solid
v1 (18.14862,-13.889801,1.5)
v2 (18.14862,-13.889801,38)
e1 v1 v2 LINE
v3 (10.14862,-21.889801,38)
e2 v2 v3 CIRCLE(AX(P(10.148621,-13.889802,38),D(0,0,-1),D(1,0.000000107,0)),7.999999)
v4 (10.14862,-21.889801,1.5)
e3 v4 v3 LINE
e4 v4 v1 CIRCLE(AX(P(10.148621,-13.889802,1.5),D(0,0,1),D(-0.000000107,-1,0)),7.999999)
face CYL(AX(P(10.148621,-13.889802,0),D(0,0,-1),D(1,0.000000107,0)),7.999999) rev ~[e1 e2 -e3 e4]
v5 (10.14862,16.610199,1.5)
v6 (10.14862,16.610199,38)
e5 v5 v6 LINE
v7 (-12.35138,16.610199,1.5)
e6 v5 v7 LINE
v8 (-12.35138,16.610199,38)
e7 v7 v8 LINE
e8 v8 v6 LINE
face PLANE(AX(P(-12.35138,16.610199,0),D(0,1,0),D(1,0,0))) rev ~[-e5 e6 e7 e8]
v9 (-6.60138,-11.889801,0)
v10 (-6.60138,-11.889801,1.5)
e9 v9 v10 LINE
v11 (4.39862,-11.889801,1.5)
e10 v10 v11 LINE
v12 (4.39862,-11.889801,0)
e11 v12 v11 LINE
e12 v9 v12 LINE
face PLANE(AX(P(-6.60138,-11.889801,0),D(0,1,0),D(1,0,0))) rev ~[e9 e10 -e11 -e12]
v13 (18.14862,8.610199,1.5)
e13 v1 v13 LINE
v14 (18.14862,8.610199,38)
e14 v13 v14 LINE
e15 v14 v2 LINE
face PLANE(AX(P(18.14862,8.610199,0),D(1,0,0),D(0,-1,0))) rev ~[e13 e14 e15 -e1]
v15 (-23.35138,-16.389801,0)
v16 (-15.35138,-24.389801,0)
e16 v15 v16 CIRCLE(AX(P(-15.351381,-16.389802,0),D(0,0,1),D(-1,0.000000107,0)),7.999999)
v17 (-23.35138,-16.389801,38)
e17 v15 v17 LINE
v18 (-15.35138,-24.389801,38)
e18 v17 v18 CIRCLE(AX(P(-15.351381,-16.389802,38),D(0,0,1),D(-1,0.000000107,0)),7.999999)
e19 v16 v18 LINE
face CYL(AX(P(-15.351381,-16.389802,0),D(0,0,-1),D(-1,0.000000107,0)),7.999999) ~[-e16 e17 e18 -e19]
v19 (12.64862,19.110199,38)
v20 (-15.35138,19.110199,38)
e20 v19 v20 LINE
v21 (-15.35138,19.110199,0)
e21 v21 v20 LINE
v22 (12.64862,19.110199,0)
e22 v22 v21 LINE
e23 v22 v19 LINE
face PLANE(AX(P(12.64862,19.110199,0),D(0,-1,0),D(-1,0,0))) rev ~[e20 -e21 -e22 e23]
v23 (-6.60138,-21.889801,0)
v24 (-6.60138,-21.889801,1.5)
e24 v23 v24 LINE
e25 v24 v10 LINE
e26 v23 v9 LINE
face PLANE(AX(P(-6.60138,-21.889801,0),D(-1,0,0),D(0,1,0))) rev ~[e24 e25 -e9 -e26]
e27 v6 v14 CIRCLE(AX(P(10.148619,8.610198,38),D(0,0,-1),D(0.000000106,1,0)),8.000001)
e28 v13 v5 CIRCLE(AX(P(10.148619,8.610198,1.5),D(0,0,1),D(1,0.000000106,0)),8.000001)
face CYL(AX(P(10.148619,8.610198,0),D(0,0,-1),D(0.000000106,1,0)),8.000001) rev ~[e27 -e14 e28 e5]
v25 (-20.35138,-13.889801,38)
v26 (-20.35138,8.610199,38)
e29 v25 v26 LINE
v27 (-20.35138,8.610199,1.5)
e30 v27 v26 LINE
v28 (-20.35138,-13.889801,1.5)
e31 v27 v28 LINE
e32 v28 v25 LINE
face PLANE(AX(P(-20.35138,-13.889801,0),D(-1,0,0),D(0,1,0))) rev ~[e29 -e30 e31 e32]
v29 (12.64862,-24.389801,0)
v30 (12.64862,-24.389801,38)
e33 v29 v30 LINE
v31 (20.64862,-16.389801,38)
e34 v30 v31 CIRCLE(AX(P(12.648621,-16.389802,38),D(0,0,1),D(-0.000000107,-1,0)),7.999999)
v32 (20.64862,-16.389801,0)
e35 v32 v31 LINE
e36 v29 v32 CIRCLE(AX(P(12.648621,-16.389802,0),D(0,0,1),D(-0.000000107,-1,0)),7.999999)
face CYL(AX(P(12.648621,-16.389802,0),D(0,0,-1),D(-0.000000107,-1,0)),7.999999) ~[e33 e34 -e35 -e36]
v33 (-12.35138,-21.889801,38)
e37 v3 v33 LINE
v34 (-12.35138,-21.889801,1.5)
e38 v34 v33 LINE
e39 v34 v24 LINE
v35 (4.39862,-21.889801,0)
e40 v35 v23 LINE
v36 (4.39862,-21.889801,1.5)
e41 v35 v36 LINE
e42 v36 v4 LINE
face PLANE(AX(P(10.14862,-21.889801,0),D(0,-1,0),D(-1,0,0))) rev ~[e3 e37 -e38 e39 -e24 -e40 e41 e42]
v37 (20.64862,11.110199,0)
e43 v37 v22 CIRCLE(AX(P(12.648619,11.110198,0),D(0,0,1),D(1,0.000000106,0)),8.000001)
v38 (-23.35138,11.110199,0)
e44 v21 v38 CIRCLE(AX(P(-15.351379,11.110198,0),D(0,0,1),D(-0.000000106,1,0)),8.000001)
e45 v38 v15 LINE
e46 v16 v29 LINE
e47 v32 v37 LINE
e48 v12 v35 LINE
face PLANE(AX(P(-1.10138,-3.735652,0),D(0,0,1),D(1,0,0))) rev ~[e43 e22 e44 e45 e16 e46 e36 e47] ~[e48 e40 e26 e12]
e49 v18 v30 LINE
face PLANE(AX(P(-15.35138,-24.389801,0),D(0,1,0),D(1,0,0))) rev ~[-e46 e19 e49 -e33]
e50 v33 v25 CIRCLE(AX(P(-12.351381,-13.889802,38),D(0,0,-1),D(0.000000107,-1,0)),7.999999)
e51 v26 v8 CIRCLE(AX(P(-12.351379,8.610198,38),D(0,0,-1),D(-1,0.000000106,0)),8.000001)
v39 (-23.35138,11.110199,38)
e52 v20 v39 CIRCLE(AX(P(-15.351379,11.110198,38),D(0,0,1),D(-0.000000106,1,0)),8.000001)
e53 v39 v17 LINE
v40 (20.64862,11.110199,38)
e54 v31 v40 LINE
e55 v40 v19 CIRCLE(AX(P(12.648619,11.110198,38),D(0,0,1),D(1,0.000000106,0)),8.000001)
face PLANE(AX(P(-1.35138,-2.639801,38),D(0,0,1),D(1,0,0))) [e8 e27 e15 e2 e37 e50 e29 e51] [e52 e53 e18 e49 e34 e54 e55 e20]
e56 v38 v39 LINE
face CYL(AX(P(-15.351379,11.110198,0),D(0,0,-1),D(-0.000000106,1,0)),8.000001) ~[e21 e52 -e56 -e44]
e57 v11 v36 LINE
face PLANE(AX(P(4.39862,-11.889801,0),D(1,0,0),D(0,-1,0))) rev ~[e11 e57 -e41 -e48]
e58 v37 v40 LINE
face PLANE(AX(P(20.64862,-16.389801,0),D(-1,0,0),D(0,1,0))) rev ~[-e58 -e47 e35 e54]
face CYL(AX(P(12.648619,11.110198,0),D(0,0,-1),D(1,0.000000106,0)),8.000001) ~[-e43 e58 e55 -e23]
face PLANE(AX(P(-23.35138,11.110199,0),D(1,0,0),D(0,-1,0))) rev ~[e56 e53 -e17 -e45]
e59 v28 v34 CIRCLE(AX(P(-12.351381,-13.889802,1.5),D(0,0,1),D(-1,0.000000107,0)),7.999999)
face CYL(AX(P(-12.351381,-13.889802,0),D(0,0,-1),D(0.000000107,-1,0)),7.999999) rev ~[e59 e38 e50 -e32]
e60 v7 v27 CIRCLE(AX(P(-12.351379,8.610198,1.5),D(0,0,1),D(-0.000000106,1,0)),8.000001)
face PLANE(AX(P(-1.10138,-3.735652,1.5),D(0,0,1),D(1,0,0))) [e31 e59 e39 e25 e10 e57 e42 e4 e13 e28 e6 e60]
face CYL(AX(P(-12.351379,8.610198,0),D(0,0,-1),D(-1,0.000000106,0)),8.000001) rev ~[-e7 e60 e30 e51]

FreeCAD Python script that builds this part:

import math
import FreeCAD as App
import Part
import Sketcher
from FreeCAD import Vector

doc = App.newDocument("Part")
body = doc.addObject("PartDesign::Body", "Body")

# Sketch on XY plane
sketch1 = doc.addObject("Sketcher::SketchObject", "Sketch")
body.addObject(sketch1)
sketch1.AttachmentSupport = (doc.XY_Plane, [""])
sketch1.MapMode = "FlatFace"
sketch1.addGeometry(Part.LineSegment(Vector(13, 19, 0), Vector(-15, 19, 0)), False)
sketch1.addGeometry(Part.ArcOfCircle(Part.Circle(Vector(-15, 11, 0), Vector(0, 0, 1), 8), math.radians(90), math.radians(180)), False)
sketch1.addGeometry(Part.LineSegment(Vector(-23, 11, 0), Vector(-23, -16, 0)), False)
sketch1.addGeometry(Part.ArcOfCircle(Part.Circle(Vector(-15, -16, 0), Vector(0, 0, 1), 8), math.radians(180), math.radians(270)), False)
sketch1.addGeometry(Part.LineSegment(Vector(-15, -24, 0), Vector(13, -24, 0)), False)
sketch1.addGeometry(Part.ArcOfCircle(Part.Circle(Vector(13, -16, 0), Vector(0, 0, 1), 8), math.radians(-90), math.radians(0)), False)
sketch1.addGeometry(Part.LineSegment(Vector(21, -16, 0), Vector(21, 11, 0)), False)
sketch1.addGeometry(Part.ArcOfCircle(Part.Circle(Vector(13, 11, 0), Vector(0, 0, 1), 8), math.radians(0), math.radians(90)), False)
sketch1.addGeometry(Part.LineSegment(Vector(-20, -14, 0), Vector(-20, 9, 0)), False)
sketch1.addGeometry(Part.ArcOfCircle(Part.Circle(Vector(-12, 9, 0), Vector(0, 0, 1), 8), math.radians(90), math.radians(180)), False)
sketch1.addGeometry(Part.LineSegment(Vector(-12, 17, 0), Vector(10, 17, 0)), False)
sketch1.addGeometry(Part.ArcOfCircle(Part.Circle(Vector(10, 9, 0), Vector(0, 0, 1), 8), math.radians(0), math.radians(90)), False)
sketch1.addGeometry(Part.LineSegment(Vector(18, 9, 0), Vector(18, -14, 0)), False)
sketch1.addGeometry(Part.ArcOfCircle(Part.Circle(Vector(10, -14, 0), Vector(0, 0, 1), 8), math.radians(-90), math.radians(0)), False)
sketch1.addGeometry(Part.LineSegment(Vector(10, -22, 0), Vector(-12, -22, 0)), False)
sketch1.addGeometry(Part.ArcOfCircle(Part.Circle(Vector(-12, -14, 0), Vector(0, 0, 1), 8), math.radians(180), math.radians(270)), False)
sketch1.addConstraint(Sketcher.Constraint("Tangent", 0, 2, 1, 1))
sketch1.addConstraint(Sketcher.Constraint("Tangent", 1, 2, 2, 1))
sketch1.addConstraint(Sketcher.Constraint("Tangent", 2, 2, 3, 1))
sketch1.addConstraint(Sketcher.Constraint("Tangent", 3, 2, 4, 1))
sketch1.addConstraint(Sketcher.Constraint("Tangent", 4, 2, 5, 1))
sketch1.addConstraint(Sketcher.Constraint("Tangent", 5, 2, 6, 1))
sketch1.addConstraint(Sketcher.Constraint("Tangent", 6, 2, 7, 1))
sketch1.addConstraint(Sketcher.Constraint("Tangent", 7, 2, 0, 1))
sketch1.addConstraint(Sketcher.Constraint("Tangent", 8, 2, 9, 2))
sketch1.addConstraint(Sketcher.Constraint("Tangent", 9, 1, 10, 1))
sketch1.addConstraint(Sketcher.Constraint("Tangent", 10, 2, 11, 2))
sketch1.addConstraint(Sketcher.Constraint("Tangent", 11, 1, 12, 1))
sketch1.addConstraint(Sketcher.Constraint("Tangent", 12, 2, 13, 2))
sketch1.addConstraint(Sketcher.Constraint("Tangent", 13, 1, 14, 1))
sketch1.addConstraint(Sketcher.Constraint("Tangent", 14, 2, 15, 2))
sketch1.addConstraint(Sketcher.Constraint("Tangent", 15, 1, 8, 1))
sketch1.addConstraint(Sketcher.Constraint("Horizontal", 0))
sketch1.addConstraint(Sketcher.Constraint("Vertical", 2))
sketch1.addConstraint(Sketcher.Constraint("Horizontal", 4))
sketch1.addConstraint(Sketcher.Constraint("Vertical", 6))
sketch1.addConstraint(Sketcher.Constraint("Vertical", 8))
sketch1.addConstraint(Sketcher.Constraint("Horizontal", 10))
sketch1.addConstraint(Sketcher.Constraint("Vertical", 12))
sketch1.addConstraint(Sketcher.Constraint("Horizontal", 14))
sketch1.addConstraint(Sketcher.Constraint("Equal", 1, 3))
sketch1.addConstraint(Sketcher.Constraint("Equal", 3, 5))
sketch1.addConstraint(Sketcher.Constraint("Equal", 5, 7))
sketch1.addConstraint(Sketcher.Constraint("Equal", 7, 9))
sketch1.addConstraint(Sketcher.Constraint("Equal", 9, 11))
sketch1.addConstraint(Sketcher.Constraint("Equal", 11, 13))
sketch1.addConstraint(Sketcher.Constraint("Equal", 13, 15))
sketch1.addConstraint(Sketcher.Constraint("Equal", 14, 8))
sketch1.addConstraint(Sketcher.Constraint("Radius", 1, 8.000001))
sketch1.addConstraint(Sketcher.Constraint("DistanceX", 0, 2, 0, 1, 28.0))
sketch1.addConstraint(Sketcher.Constraint("DistanceX", 10, 1, 10, 2, 22.5))
sketch1.addConstraint(Sketcher.Constraint("DistanceY", 2, 2, 2, 1, 27.5))
sketch1.addConstraint(Sketcher.Constraint("DistanceX", 1, 3, 9, 3, 3.0))
sketch1.addConstraint(Sketcher.Constraint("DistanceY", 3, 3, 9, 3, 25.0))
sketch1.addConstraint(Sketcher.Constraint("DistanceY", -1, 1, 1, 3, 11.110198))
sketch1.addConstraint(Sketcher.Constraint("DistanceX", 1, 3, -1, 1, 15.351379))
pad1 = doc.addObject("PartDesign::Pad", "Pad")
body.addObject(pad1)
pad1.Profile = sketch1
pad1.Length = 38

# Sketch on XY plane
sketch2 = doc.addObject("Sketcher::SketchObject", "Sketch001")
body.addObject(sketch2)
sketch2.AttachmentSupport = (doc.XY_Plane, [""])
sketch2.MapMode = "FlatFace"
sketch2.addGeometry(Part.LineSegment(Vector(10, 17, 0), Vector(-12, 17, 0)), False)
sketch2.addGeometry(Part.ArcOfCircle(Part.Circle(Vector(-12, 9, 0), Vector(0, 0, 1), 8), math.radians(90), math.radians(180)), False)
sketch2.addGeometry(Part.LineSegment(Vector(-20, 9, 0), Vector(-20, -14, 0)), False)
sketch2.addGeometry(Part.ArcOfCircle(Part.Circle(Vector(-12, -14, 0), Vector(0, 0, 1), 8), math.radians(180), math.radians(270)), False)
sketch2.addGeometry(Part.LineSegment(Vector(-12, -22, 0), Vector(-7, -22, 0)), False)
sketch2.addGeometry(Part.LineSegment(Vector(-7, -22, 0), Vector(-7, -12, 0)), False)
sketch2.addGeometry(Part.LineSegment(Vector(-7, -12, 0), Vector(4, -12, 0)), False)
sketch2.addGeometry(Part.LineSegment(Vector(4, -12, 0), Vector(4, -22, 0)), False)
sketch2.addGeometry(Part.LineSegment(Vector(4, -22, 0), Vector(10, -22, 0)), False)
sketch2.addGeometry(Part.ArcOfCircle(Part.Circle(Vector(10, -14, 0), Vector(0, 0, 1), 8), math.radians(-90), math.radians(0)), False)
sketch2.addGeometry(Part.LineSegment(Vector(18, -14, 0), Vector(18, 9, 0)), False)
sketch2.addGeometry(Part.ArcOfCircle(Part.Circle(Vector(10, 9, 0), Vector(0, 0, 1), 8), math.radians(0), math.radians(90)), False)
sketch2.addConstraint(Sketcher.Constraint("Tangent", 0, 2, 1, 1))
sketch2.addConstraint(Sketcher.Constraint("Tangent", 1, 2, 2, 1))
sketch2.addConstraint(Sketcher.Constraint("Tangent", 2, 2, 3, 1))
sketch2.addConstraint(Sketcher.Constraint("Tangent", 3, 2, 4, 1))
sketch2.addConstraint(Sketcher.Constraint("Coincident", 4, 2, 5, 1))
sketch2.addConstraint(Sketcher.Constraint("Coincident", 5, 2, 6, 1))
sketch2.addConstraint(Sketcher.Constraint("Coincident", 6, 2, 7, 1))
sketch2.addConstraint(Sketcher.Constraint("Coincident", 7, 2, 8, 1))
sketch2.addConstraint(Sketcher.Constraint("Tangent", 8, 2, 9, 1))
sketch2.addConstraint(Sketcher.Constraint("Tangent", 9, 2, 10, 1))
sketch2.addConstraint(Sketcher.Constraint("Tangent", 10, 2, 11, 1))
sketch2.addConstraint(Sketcher.Constraint("Tangent", 11, 2, 0, 1))
sketch2.addConstraint(Sketcher.Constraint("Horizontal", 0))
sketch2.addConstraint(Sketcher.Constraint("Vertical", 2))
sketch2.addConstraint(Sketcher.Constraint("Horizontal", 4))
sketch2.addConstraint(Sketcher.Constraint("Vertical", 5))
sketch2.addConstraint(Sketcher.Constraint("Horizontal", 6))
sketch2.addConstraint(Sketcher.Constraint("Vertical", 7))
sketch2.addConstraint(Sketcher.Constraint("Horizontal", 8))
sketch2.addConstraint(Sketcher.Constraint("Vertical", 10))
sketch2.addConstraint(Sketcher.Constraint("Equal", 1, 3))
sketch2.addConstraint(Sketcher.Constraint("Equal", 3, 9))
sketch2.addConstraint(Sketcher.Constraint("Equal", 9, 11))
sketch2.addConstraint(Sketcher.Constraint("Horizontal", 3, 3, 9, 3))
sketch2.addConstraint(Sketcher.Constraint("Equal", 4, 8))
sketch2.addConstraint(Sketcher.Constraint("Equal", 0, 2))
sketch2.addConstraint(Sketcher.Constraint("Radius", 1, 8.000001))
sketch2.addConstraint(Sketcher.Constraint("DistanceX", 6, 1, 6, 2, 11.0))
sketch2.addConstraint(Sketcher.Constraint("DistanceY", 5, 1, 5, 2, 10.0))
sketch2.addConstraint(Sketcher.Constraint("DistanceX", 0, 2, 0, 1, 22.5))
sketch2.addConstraint(Sketcher.Constraint("DistanceY", -1, 1, 1, 3, 8.610198))
sketch2.addConstraint(Sketcher.Constraint("DistanceX", 1, 3, -1, 1, 12.351379))
pad2 = doc.addObject("PartDesign::Pad", "Pad001")
body.addObject(pad2)
pad2.Profile = sketch2
pad2.Length = 1.5

doc.recompute()
